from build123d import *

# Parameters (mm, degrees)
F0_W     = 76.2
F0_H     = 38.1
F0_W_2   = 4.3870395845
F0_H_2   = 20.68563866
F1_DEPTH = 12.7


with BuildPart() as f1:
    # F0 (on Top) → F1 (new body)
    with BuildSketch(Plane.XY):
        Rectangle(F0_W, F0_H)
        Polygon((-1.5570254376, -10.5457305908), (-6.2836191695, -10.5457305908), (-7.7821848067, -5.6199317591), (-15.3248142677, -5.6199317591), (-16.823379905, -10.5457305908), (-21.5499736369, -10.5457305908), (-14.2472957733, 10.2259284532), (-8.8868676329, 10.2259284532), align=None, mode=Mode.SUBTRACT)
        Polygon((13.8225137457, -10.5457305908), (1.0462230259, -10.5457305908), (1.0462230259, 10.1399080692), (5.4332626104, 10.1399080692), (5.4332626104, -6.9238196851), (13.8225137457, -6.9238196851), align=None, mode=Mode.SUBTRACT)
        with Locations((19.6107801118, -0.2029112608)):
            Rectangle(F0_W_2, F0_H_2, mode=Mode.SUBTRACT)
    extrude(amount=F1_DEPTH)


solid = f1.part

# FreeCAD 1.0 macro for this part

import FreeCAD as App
import Part
import Sketcher
Q = App.Units.Quantity

doc = App.newDocument("Part")
body = doc.addObject("PartDesign::Body", "Body")

sketch1 = body.newObject("Sketcher::SketchObject", "Sketch")
sketch1.AttachmentSupport = (doc.getObject("XY_Plane"), [""])
sketch1.MapMode = "FlatFace"
sketch1.addGeometry([
    Part.LineSegment(App.Vector(-38.1, 19.1, 0), App.Vector(-38.1, -19.1, 0)),
    Part.LineSegment(App.Vector(-38.1, -19.1, 0), App.Vector(38.1, -19.1, 0)),
    Part.LineSegment(App.Vector(38.1, -19.1, 0), App.Vector(38.1, 19.1, 0)),
    Part.LineSegment(App.Vector(38.1, 19.1, 0), App.Vector(-38.1, 19.1, 0)),
    Part.LineSegment(App.Vector(13.8, -6.9, 0), App.Vector(13.8, -10.5, 0)),
    Part.LineSegment(App.Vector(13.8, -10.5, 0), App.Vector(1, -10.5, 0)),
    Part.LineSegment(App.Vector(1, -10.5, 0), App.Vector(1, 10.1, 0)),
    Part.LineSegment(App.Vector(1, 10.1, 0), App.Vector(5.4, 10.1, 0)),
    Part.LineSegment(App.Vector(5.4, 10.1, 0), App.Vector(5.4, -6.9, 0)),
    Part.LineSegment(App.Vector(5.4, -6.9, 0), App.Vector(13.8, -6.9, 0)),
    Part.LineSegment(App.Vector(21.8, -10.5, 0), App.Vector(17.4, -10.5, 0)),
    Part.LineSegment(App.Vector(17.4, -10.5, 0), App.Vector(17.4, 10.1, 0)),
    Part.LineSegment(App.Vector(17.4, 10.1, 0), App.Vector(21.8, 10.1, 0)),
    Part.LineSegment(App.Vector(21.8, 10.1, 0), App.Vector(21.8, -10.5, 0)),
    Part.LineSegment(App.Vector(-8.9, 10.2, 0), App.Vector(-1.6, -10.5, 0)),
    Part.LineSegment(App.Vector(-1.6, -10.5, 0), App.Vector(-6.3, -10.5, 0)),
    Part.LineSegment(App.Vector(-6.3, -10.5, 0), App.Vector(-7.8, -5.6, 0)),
    Part.LineSegment(App.Vector(-7.8, -5.6, 0), App.Vector(-15.3, -5.6, 0)),
    Part.LineSegment(App.Vector(-15.3, -5.6, 0), App.Vector(-16.8, -10.5, 0)),
    Part.LineSegment(App.Vector(-16.8, -10.5, 0), App.Vector(-21.5, -10.5, 0)),
    Part.LineSegment(App.Vector(-21.5, -10.5, 0), App.Vector(-14.2, 10.2, 0)),
    Part.LineSegment(App.Vector(-14.2, 10.2, 0), App.Vector(-8.9, 10.2, 0)),
], False)
sketch1.addConstraint([
    Sketcher.Constraint("Coincident", 0, 2, 1, 1),
    Sketcher.Constraint("Coincident", 1, 2, 2, 1),
    Sketcher.Constraint("Coincident", 2, 2, 3, 1),
    Sketcher.Constraint("Coincident", 3, 2, 0, 1),
    Sketcher.Constraint("Coincident", 4, 2, 5, 1),
    Sketcher.Constraint("Coincident", 5, 2, 6, 1),
    Sketcher.Constraint("Coincident", 6, 2, 7, 1),
    Sketcher.Constraint("Coincident", 7, 2, 8, 1),
    Sketcher.Constraint("Coincident", 8, 2, 9, 1),
    Sketcher.Constraint("Coincident", 9, 2, 4, 1),
    Sketcher.Constraint("Coincident", 10, 2, 11, 1),
    Sketcher.Constraint("Coincident", 11, 2, 12, 1),
    Sketcher.Constraint("Coincident", 12, 2, 13, 1),
    Sketcher.Constraint("Coincident", 13, 2, 10, 1),
    Sketcher.Constraint("Coincident", 14, 2, 15, 1),
    Sketcher.Constraint("Coincident", 15, 2, 16, 1),
    Sketcher.Constraint("Coincident", 16, 2, 17, 1),
    Sketcher.Constraint("Coincident", 17, 2, 18, 1),
    Sketcher.Constraint("Coincident", 18, 2, 19, 1),
    Sketcher.Constraint("Coincident", 19, 2, 20, 1),
    Sketcher.Constraint("Coincident", 20, 2, 21, 1),
    Sketcher.Constraint("Coincident", 21, 2, 14, 1),
    Sketcher.Constraint("Vertical", 0),
    Sketcher.Constraint("Horizontal", 1),
    Sketcher.Constraint("Vertical", 2),
    Sketcher.Constraint("Horizontal", 3),
    Sketcher.Constraint("Vertical", 4),
    Sketcher.Constraint("Horizontal", 5),
    Sketcher.Constraint("Vertical", 6),
    Sketcher.Constraint("Horizontal", 7),
    Sketcher.Constraint("Vertical", 8),
    Sketcher.Constraint("Horizontal", 9),
    Sketcher.Constraint("Horizontal", 10),
    Sketcher.Constraint("Vertical", 11),
    Sketcher.Constraint("Horizontal", 12),
    Sketcher.Constraint("Vertical", 13),
    Sketcher.Constraint("Horizontal", 15),
    Sketcher.Constraint("Horizontal", 17),
    Sketcher.Constraint("Horizontal", 19),
    Sketcher.Constraint("Horizontal", 21),
    Sketcher.Constraint("Symmetric", 0, 2, 2, 2, -1, 1),
    Sketcher.Constraint("Horizontal", 5, 2, 10, 2),
    Sketcher.Constraint("Horizontal", 7, 2, 11, 2),
    Sketcher.Constraint("Horizontal", 13, 2, 14, 2),
    Sketcher.Constraint("Horizontal", 15, 2, 18, 2),
    Sketcher.Constraint("Equal", 7, 10),
    Sketcher.Constraint("Equal", 15, 19),
    Sketcher.Constraint("Equal", 16, 18),
    Sketcher.Constraint("DistanceX", 1, 1, 1, 2, Q("3 in")),
    Sketcher.Constraint("DistanceY", 0, 2, 0, 1, Q("1.5 in")),
    Sketcher.Constraint("DistanceX", 5, 2, 5, 1, 12.776291),
    Sketcher.Constraint("DistanceX", 7, 1, 7, 2, 4.38704),
    Sketcher.Constraint("DistanceX", 17, 2, 17, 1, 7.542629),
    Sketcher.Constraint("DistanceX", 21, 1, 21, 2, 5.360428),
    Sketcher.Constraint("DistanceY", 4, 2, 4, 1, 3.621911),
    Sketcher.Constraint("DistanceY", 6, 1, 6, 2, 20.685639),
    Sketcher.Constraint("DistanceX", -1, 1, 12, 2, 21.8043),
    Sketcher.Constraint("DistanceY", 15, 2, 16, 2, 4.925799),
    Sketcher.Constraint("Distance", 20, 22.017968),
    Sketcher.Constraint("DistanceX", 15, 2, 15, 1, 4.726594),
    Sketcher.Constraint("DistanceY", 4, 2, -1, 1, 10.545731),
    Sketcher.Constraint("DistanceX", 15, 2, -1, 1, 6.283619),
    Sketcher.Constraint("DistanceX", 18, 2, -1, 1, 16.82338),
    Sketcher.Constraint("DistanceY", -1, 1, 20, 2, 10.225928),
    Sketcher.Constraint("DistanceX", 14, 2, 5, 2, 2.603248),
])
pad1 = body.newObject("PartDesign::Pad", "Pad")
pad1.Profile = sketch1
pad1.Length = Q("0.5 in")

doc.recompute()
